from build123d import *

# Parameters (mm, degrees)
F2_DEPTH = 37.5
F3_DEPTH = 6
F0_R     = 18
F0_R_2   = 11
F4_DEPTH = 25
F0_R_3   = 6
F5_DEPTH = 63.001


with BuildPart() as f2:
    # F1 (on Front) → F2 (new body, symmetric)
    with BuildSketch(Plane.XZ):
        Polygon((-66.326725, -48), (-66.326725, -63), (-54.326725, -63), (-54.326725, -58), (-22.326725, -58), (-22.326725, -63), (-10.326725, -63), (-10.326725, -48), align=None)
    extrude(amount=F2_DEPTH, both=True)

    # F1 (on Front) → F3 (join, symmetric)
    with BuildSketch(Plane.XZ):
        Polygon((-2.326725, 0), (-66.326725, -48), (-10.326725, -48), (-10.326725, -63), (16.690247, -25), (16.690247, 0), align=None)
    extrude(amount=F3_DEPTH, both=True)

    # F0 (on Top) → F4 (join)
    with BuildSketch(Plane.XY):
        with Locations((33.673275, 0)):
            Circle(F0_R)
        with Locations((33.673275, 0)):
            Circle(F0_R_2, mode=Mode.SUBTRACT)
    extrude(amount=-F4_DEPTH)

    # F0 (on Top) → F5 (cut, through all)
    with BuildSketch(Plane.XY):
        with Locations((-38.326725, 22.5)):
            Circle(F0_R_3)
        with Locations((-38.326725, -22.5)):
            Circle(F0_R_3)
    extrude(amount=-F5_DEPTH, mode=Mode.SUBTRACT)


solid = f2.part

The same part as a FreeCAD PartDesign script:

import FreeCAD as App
import Part
import Sketcher
from FreeCAD import Vector
Q = App.Units.Quantity

doc = App.newDocument("Part")
body = doc.addObject("PartDesign::Body", "Body")

sketch1 = body.newObject("Sketcher::SketchObject", "Sketch")
sketch1.AttachmentSupport = (doc.getObject("XZ_Plane"), [""])
sketch1.MapMode = "FlatFace"
sketch1.addGeometry([
    Part.LineSegment(Vector(-66, -48, 0), Vector(-66, -63, 0)),
    Part.LineSegment(Vector(-66, -63, 0), Vector(-54, -63, 0)),
    Part.LineSegment(Vector(-54, -63, 0), Vector(-54, -58, 0)),
    Part.LineSegment(Vector(-54, -58, 0), Vector(-22, -58, 0)),
    Part.LineSegment(Vector(-22, -58, 0), Vector(-22, -63, 0)),
    Part.LineSegment(Vector(-22, -63, 0), Vector(-10, -63, 0)),
    Part.LineSegment(Vector(-10, -63, 0), Vector(-10, -48, 0)),
    Part.LineSegment(Vector(-10, -48, 0), Vector(-66, -48, 0)),
], False)
sketch1.addConstraint([
    Sketcher.Constraint("Coincident", 0, 2, 1, 1),
    Sketcher.Constraint("Coincident", 1, 2, 2, 1),
    Sketcher.Constraint("Coincident", 2, 2, 3, 1),
    Sketcher.Constraint("Coincident", 3, 2, 4, 1),
    Sketcher.Constraint("Coincident", 4, 2, 5, 1),
    Sketcher.Constraint("Coincident", 5, 2, 6, 1),
    Sketcher.Constraint("Coincident", 6, 2, 7, 1),
    Sketcher.Constraint("Coincident", 7, 2, 0, 1),
    Sketcher.Constraint("Vertical", 0),
    Sketcher.Constraint("Horizontal", 1),
    Sketcher.Constraint("Vertical", 2),
    Sketcher.Constraint("Horizontal", 3),
    Sketcher.Constraint("Vertical", 4),
    Sketcher.Constraint("Horizontal", 5),
    Sketcher.Constraint("Vertical", 6),
    Sketcher.Constraint("Horizontal", 7),
    Sketcher.Constraint("Horizontal", 1, 2, 4, 2),
    Sketcher.Constraint("Equal", 1, 5),
    Sketcher.Constraint("DistanceX", 1, 1, 1, 2, Q("12 mm")),
    Sketcher.Constraint("DistanceX", 3, 1, 3, 2, Q("32 mm")),
    Sketcher.Constraint("DistanceY", 0, 2, 0, 1, Q("15 mm")),
    Sketcher.Constraint("DistanceY", 2, 1, 2, 2, Q("5 mm")),
    Sketcher.Constraint("DistanceY", 0, 2, -1, 1, Q("63 mm")),
    Sketcher.Constraint("DistanceX", 0, 2, -1, 1, Q("66.326725 mm")),
])
pad1 = body.newObject("PartDesign::Pad", "Pad")
pad1.Profile = sketch1
pad1.Length = 75
pad1.Midplane = True

sketch2 = body.newObject("Sketcher::SketchObject", "Sketch001")
sketch2.AttachmentSupport = (doc.getObject("XZ_Plane"), [""])
sketch2.MapMode = "FlatFace"
sketch2.addGeometry([
    Part.LineSegment(Vector(-2, 0, 0), Vector(-66, -48, 0)),
    Part.LineSegment(Vector(-66, -48, 0), Vector(-10, -48, 0)),
    Part.LineSegment(Vector(-10, -48, 0), Vector(-10, -63, 0)),
    Part.LineSegment(Vector(-10, -63, 0), Vector(17, -25, 0)),
    Part.LineSegment(Vector(17, -25, 0), Vector(17, 0, 0)),
    Part.LineSegment(Vector(17, 0, 0), Vector(-2, 0, 0)),
], False)
sketch2.addConstraint([
    Sketcher.Constraint("Coincident", 0, 2, 1, 1),
    Sketcher.Constraint("Coincident", 1, 2, 2, 1),
    Sketcher.Constraint("Coincident", 2, 2, 3, 1),
    Sketcher.Constraint("Coincident", 3, 2, 4, 1),
    Sketcher.Constraint("Coincident", 4, 2, 5, 1),
    Sketcher.Constraint("Coincident", 5, 2, 0, 1),
    Sketcher.Constraint("Horizontal", 1),
    Sketcher.Constraint("Vertical", 2),
    Sketcher.Constraint("Vertical", 4),
    Sketcher.Constraint("Horizontal", 5),
    Sketcher.Constraint("PointOnObject", 4, 2, -1),
    Sketcher.Constraint("DistanceX", 1, 1, 1, 2, Q("56 mm")),
    Sketcher.Constraint("DistanceY", 2, 2, 2, 1, Q("15 mm")),
    Sketcher.Constraint("DistanceY", 4, 1, 4, 2, Q("25 mm")),
    Sketcher.Constraint("Distance", 0, Q("80 mm")),
    Sketcher.Constraint("DistanceY", 0, 2, -1, 1, Q("48 mm")),
    Sketcher.Constraint("DistanceX", 5, 2, 5, 1, Q("19.016972 mm")),
    Sketcher.Constraint("DistanceX", 0, 2, -1, 1, Q("66.326725 mm")),
])
pad2 = body.newObject("PartDesign::Pad", "Pad001")
pad2.Profile = sketch2
pad2.Length = 12
pad2.Midplane = True

sketch3 = body.newObject("Sketcher::SketchObject", "Sketch002")
sketch3.AttachmentSupport = (doc.getObject("XY_Plane"), [""])
sketch3.MapMode = "FlatFace"
sketch3.addGeometry([
    Part.Circle(Vector(34, 0, 0), Vector(0, 0, 1), 18),
    Part.Circle(Vector(34, 0, 0), Vector(0, 0, 1), 11),
], False)
sketch3.addConstraint([
    Sketcher.Constraint("Coincident", 1, 3, 0, 3),
    Sketcher.Constraint("PointOnObject", 0, 3, -1),
    Sketcher.Constraint("Diameter", 0, Q("36 mm")),
    Sketcher.Constraint("Diameter", 1, Q("22 mm")),
    Sketcher.Constraint("DistanceX", -1, 1, 0, 3, Q("33.673275 mm")),
])
pad3 = body.newObject("PartDesign::Pad", "Pad002")
pad3.Profile = sketch3
pad3.Length = 25
pad3.Reversed = True

sketch4 = body.newObject("Sketcher::SketchObject", "Sketch003")
sketch4.AttachmentSupport = (doc.getObject("XY_Plane"), [""])
sketch4.MapMode = "FlatFace"
sketch4.addGeometry([
    Part.Circle(Vector(-38, 22, 0), Vector(0, 0, 1), 6),
    Part.Circle(Vector(-38, -22, 0), Vector(0, 0, 1), 6),
], False)
sketch4.addConstraint([
    Sketcher.Constraint("Equal", 0, 1),
    Sketcher.Constraint("Symmetric", 0, 3, 1, 3, -1),
    Sketcher.Constraint("Diameter", 0, Q("12 mm")),
    Sketcher.Constraint("DistanceY", 1, 3, 0, 3, Q("45 mm")),
    Sketcher.Constraint("DistanceX", 0, 3, -1, 1, Q("38.326725 mm")),
])
pocket1 = body.newObject("PartDesign::Pocket", "Pocket")
pocket1.Profile = sketch4
pocket1.Type = "ThroughAll"

doc.recompute()
